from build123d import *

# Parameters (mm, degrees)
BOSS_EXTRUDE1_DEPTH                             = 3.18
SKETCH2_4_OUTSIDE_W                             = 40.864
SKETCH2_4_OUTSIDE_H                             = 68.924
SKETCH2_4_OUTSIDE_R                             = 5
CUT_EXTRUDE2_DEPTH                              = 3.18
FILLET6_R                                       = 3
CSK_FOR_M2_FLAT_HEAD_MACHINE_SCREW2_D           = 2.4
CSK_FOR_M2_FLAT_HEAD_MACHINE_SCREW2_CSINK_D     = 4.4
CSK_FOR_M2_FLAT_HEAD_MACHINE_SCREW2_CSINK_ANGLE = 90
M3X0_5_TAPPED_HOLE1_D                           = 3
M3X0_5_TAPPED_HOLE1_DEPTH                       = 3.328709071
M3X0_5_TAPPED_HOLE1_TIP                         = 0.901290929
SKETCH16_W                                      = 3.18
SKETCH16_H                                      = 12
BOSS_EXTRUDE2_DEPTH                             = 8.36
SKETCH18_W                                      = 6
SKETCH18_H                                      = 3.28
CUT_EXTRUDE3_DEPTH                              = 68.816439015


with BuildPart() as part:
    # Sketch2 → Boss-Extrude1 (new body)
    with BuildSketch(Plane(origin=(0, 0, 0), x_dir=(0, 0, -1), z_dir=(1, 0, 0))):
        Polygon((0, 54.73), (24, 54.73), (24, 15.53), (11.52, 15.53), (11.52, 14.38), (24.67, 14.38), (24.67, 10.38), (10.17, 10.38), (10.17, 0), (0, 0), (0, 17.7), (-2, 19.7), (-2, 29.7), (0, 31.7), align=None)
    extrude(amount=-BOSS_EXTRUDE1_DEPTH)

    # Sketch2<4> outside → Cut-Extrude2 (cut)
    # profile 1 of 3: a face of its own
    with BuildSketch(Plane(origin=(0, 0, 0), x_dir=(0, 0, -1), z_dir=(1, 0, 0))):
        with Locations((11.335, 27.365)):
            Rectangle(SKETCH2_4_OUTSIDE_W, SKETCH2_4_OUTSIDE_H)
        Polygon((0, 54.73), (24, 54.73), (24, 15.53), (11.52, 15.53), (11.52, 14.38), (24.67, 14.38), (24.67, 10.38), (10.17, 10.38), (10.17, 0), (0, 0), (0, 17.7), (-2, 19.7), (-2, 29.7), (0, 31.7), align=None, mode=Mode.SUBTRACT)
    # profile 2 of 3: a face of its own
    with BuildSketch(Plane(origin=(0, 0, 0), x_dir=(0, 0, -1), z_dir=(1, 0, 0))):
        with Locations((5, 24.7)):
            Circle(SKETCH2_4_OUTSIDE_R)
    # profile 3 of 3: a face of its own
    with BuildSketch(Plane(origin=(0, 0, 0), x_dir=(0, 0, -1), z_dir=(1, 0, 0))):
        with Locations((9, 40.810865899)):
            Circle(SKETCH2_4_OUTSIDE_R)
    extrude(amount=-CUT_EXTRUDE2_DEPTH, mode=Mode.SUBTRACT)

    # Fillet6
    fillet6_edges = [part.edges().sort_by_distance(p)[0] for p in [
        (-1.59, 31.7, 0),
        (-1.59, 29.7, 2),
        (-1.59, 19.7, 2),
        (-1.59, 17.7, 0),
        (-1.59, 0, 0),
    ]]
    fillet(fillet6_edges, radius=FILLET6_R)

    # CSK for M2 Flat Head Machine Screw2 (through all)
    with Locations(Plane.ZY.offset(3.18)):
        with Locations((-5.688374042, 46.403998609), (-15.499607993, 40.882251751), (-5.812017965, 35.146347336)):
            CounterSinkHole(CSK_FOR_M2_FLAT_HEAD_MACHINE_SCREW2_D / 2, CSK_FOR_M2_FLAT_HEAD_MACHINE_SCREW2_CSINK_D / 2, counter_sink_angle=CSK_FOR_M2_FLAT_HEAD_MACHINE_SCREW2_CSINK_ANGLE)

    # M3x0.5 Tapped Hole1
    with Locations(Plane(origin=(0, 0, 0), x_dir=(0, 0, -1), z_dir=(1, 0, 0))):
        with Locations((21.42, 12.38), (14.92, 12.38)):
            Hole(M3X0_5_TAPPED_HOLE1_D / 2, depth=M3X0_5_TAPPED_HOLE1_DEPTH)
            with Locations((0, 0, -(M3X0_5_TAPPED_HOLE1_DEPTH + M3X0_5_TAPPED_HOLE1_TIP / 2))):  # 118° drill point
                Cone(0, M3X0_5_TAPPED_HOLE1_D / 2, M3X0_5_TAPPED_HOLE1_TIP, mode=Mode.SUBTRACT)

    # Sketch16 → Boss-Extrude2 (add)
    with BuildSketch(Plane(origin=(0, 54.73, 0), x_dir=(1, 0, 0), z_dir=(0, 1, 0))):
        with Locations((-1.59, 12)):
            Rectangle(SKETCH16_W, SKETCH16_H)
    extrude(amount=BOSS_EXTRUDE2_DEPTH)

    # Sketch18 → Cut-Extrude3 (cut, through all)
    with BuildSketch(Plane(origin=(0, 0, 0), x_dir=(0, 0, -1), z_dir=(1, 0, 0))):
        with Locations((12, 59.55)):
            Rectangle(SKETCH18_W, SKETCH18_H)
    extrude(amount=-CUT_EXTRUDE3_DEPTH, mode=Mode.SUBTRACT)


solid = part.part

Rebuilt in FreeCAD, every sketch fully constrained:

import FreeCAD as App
import Part
import Sketcher


def edges_at(feature, points):
    """Names of the edges that pass closest to the given points."""
    edges = feature.Shape.Edges
    near = lambda p: min(range(len(edges)), key=lambda i: edges[i].distToShape(Part.Vertex(*p))[0])
    return sorted({f"Edge{near(p) + 1}" for p in points})

doc = App.newDocument("Part")
body = doc.addObject("PartDesign::Body", "Body")

sketch1 = doc.addObject("Sketcher::SketchObject", "Sketch")
body.addObject(sketch1)
sketch1.AttachmentSupport = (doc.YZ_Plane, [""])
sketch1.MapMode = "FlatFace"
sketch1.addGeometry([
    Part.LineSegment(App.Vector(54.7, -24, 0), App.Vector(54.7, 0, 0)),
    Part.LineSegment(App.Vector(54.7, 0, 0), App.Vector(31.7, 0, 0)),
    Part.LineSegment(App.Vector(31.7, 0, 0), App.Vector(29.7, 2, 0)),
    Part.LineSegment(App.Vector(29.7, 2, 0), App.Vector(19.7, 2, 0)),
    Part.LineSegment(App.Vector(19.7, 2, 0), App.Vector(17.7, 0, 0)),
    Part.LineSegment(App.Vector(17.7, 0, 0), App.Vector(0, 0, 0)),
    Part.LineSegment(App.Vector(0, 0, 0), App.Vector(0, -10.2, 0)),
    Part.LineSegment(App.Vector(0, -10.2, 0), App.Vector(10.4, -10.2, 0)),
    Part.LineSegment(App.Vector(10.4, -10.2, 0), App.Vector(10.4, -24.7, 0)),
    Part.LineSegment(App.Vector(10.4, -24.7, 0), App.Vector(14.4, -24.7, 0)),
    Part.LineSegment(App.Vector(14.4, -24.7, 0), App.Vector(14.4, -11.5, 0)),
    Part.LineSegment(App.Vector(14.4, -11.5, 0), App.Vector(15.5, -11.5, 0)),
    Part.LineSegment(App.Vector(15.5, -11.5, 0), App.Vector(15.5, -24, 0)),
    Part.LineSegment(App.Vector(15.5, -24, 0), App.Vector(54.7, -24, 0)),
], False)
sketch1.addConstraint([
    Sketcher.Constraint("Coincident", 0, 2, 1, 1),
    Sketcher.Constraint("Coincident", 1, 2, 2, 1),
    Sketcher.Constraint("Coincident", 2, 2, 3, 1),
    Sketcher.Constraint("Coincident", 3, 2, 4, 1),
    Sketcher.Constraint("Coincident", 4, 2, 5, 1),
    Sketcher.Constraint("Coincident", 5, 2, 6, 1),
    Sketcher.Constraint("Coincident", 6, 2, 7, 1),
    Sketcher.Constraint("Coincident", 7, 2, 8, 1),
    Sketcher.Constraint("Coincident", 8, 2, 9, 1),
    Sketcher.Constraint("Coincident", 9, 2, 10, 1),
    Sketcher.Constraint("Coincident", 10, 2, 11, 1),
    Sketcher.Constraint("Coincident", 11, 2, 12, 1),
    Sketcher.Constraint("Coincident", 12, 2, 13, 1),
    Sketcher.Constraint("Coincident", 13, 2, 0, 1),
    Sketcher.Constraint("Vertical", 0),
    Sketcher.Constraint("Horizontal", 1),
    Sketcher.Constraint("Horizontal", 3),
    Sketcher.Constraint("Horizontal", 5),
    Sketcher.Constraint("Vertical", 6),
    Sketcher.Constraint("Horizontal", 7),
    Sketcher.Constraint("Vertical", 8),
    Sketcher.Constraint("Horizontal", 9),
    Sketcher.Constraint("Vertical", 10),
    Sketcher.Constraint("Horizontal", 11),
    Sketcher.Constraint("Vertical", 12),
    Sketcher.Constraint("Horizontal", 13),
    Sketcher.Constraint("Coincident", 5, 2, -1, 1),
    Sketcher.Constraint("PointOnObject", 0, 2, -1),
    Sketcher.Constraint("Perpendicular", 2, 4),
    Sketcher.Constraint("Equal", 2, 4),
    Sketcher.Constraint("DistanceX", 3, 2, 3, 1, 10.0),
    Sketcher.Constraint("DistanceX", 9, 1, 9, 2, 4.0),
    Sketcher.Constraint("DistanceY", 0, 1, 0, 2, 24.0),
    Sketcher.Constraint("DistanceX", 5, 2, 5, 1, 17.7),
    Sketcher.Constraint("DistanceX", 13, 1, 13, 2, 39.2),
    Sketcher.Constraint("DistanceY", 8, 2, 8, 1, 14.5),
    Sketcher.Constraint("DistanceY", -1, 1, 2, 2, 2.0),
    Sketcher.Constraint("DistanceX", 1, 2, 1, 1, 23.03),
    Sketcher.Constraint("DistanceX", 7, 1, 7, 2, 10.38),
    Sketcher.Constraint("DistanceY", 6, 2, 6, 1, 10.17),
    Sketcher.Constraint("DistanceY", 10, 1, 10, 2, 13.15),
])
pad1 = doc.addObject("PartDesign::Pad", "Pad")
body.addObject(pad1)
pad1.Profile = sketch1
pad1.Length = 3.18
pad1.Reversed = True

sketch2 = doc.addObject("Sketcher::SketchObject", "Sketch001")
body.addObject(sketch2)
sketch2.AttachmentSupport = (doc.YZ_Plane, [""])
sketch2.MapMode = "FlatFace"
sketch2.addGeometry([
    Part.LineSegment(App.Vector(61.8, 9.1, 0), App.Vector(-7.1, 9.1, 0)),
    Part.LineSegment(App.Vector(-7.1, 9.1, 0), App.Vector(-7.1, -31.8, 0)),
    Part.LineSegment(App.Vector(-7.1, -31.8, 0), App.Vector(61.8, -31.8, 0)),
    Part.LineSegment(App.Vector(61.8, -31.8, 0), App.Vector(61.8, 9.1, 0)),
    Part.LineSegment(App.Vector(31.7, 0, 0), App.Vector(54.7, 0, 0)),
    Part.LineSegment(App.Vector(54.7, 0, 0), App.Vector(54.7, -24, 0)),
    Part.LineSegment(App.Vector(54.7, -24, 0), App.Vector(15.5, -24, 0)),
    Part.LineSegment(App.Vector(15.5, -24, 0), App.Vector(15.5, -11.5, 0)),
    Part.LineSegment(App.Vector(15.5, -11.5, 0), App.Vector(14.4, -11.5, 0)),
    Part.LineSegment(App.Vector(14.4, -11.5, 0), App.Vector(14.4, -24.7, 0)),
    Part.LineSegment(App.Vector(14.4, -24.7, 0), App.Vector(10.4, -24.7, 0)),
    Part.LineSegment(App.Vector(10.4, -24.7, 0), App.Vector(10.4, -10.2, 0)),
    Part.LineSegment(App.Vector(10.4, -10.2, 0), App.Vector(0, -10.2, 0)),
    Part.LineSegment(App.Vector(0, -10.2, 0), App.Vector(0, 0, 0)),
    Part.LineSegment(App.Vector(0, 0, 0), App.Vector(17.7, 0, 0)),
    Part.LineSegment(App.Vector(17.7, 0, 0), App.Vector(19.7, 2, 0)),
    Part.LineSegment(App.Vector(19.7, 2, 0), App.Vector(29.7, 2, 0)),
    Part.LineSegment(App.Vector(29.7, 2, 0), App.Vector(31.7, 0, 0)),
    Part.Circle(App.Vector(24.7, -5, 0), App.Vector(0, 0, 1), 5),
    Part.Circle(App.Vector(40.8, -9, 0), App.Vector(0, 0, 1), 5),
], False)
sketch2.addConstraint([
    Sketcher.Constraint("Coincident", 0, 2, 1, 1),
    Sketcher.Constraint("Coincident", 1, 2, 2, 1),
    Sketcher.Constraint("Coincident", 2, 2, 3, 1),
    Sketcher.Constraint("Coincident", 3, 2, 0, 1),
    Sketcher.Constraint("Coincident", 4, 2, 5, 1),
    Sketcher.Constraint("Coincident", 5, 2, 6, 1),
    Sketcher.Constraint("Coincident", 6, 2, 7, 1),
    Sketcher.Constraint("Coincident", 7, 2, 8, 1),
    Sketcher.Constraint("Coincident", 8, 2, 9, 1),
    Sketcher.Constraint("Coincident", 9, 2, 10, 1),
    Sketcher.Constraint("Coincident", 10, 2, 11, 1),
    Sketcher.Constraint("Coincident", 11, 2, 12, 1),
    Sketcher.Constraint("Coincident", 12, 2, 13, 1),
    Sketcher.Constraint("Coincident", 13, 2, 14, 1),
    Sketcher.Constraint("Coincident", 14, 2, 15, 1),
    Sketcher.Constraint("Coincident", 15, 2, 16, 1),
    Sketcher.Constraint("Coincident", 16, 2, 17, 1),
    Sketcher.Constraint("Coincident", 17, 2, 4, 1),
    Sketcher.Constraint("Horizontal", 0),
    Sketcher.Constraint("Vertical", 1),
    Sketcher.Constraint("Horizontal", 2),
    Sketcher.Constraint("Vertical", 3),
    Sketcher.Constraint("Horizontal", 4),
    Sketcher.Constraint("Vertical", 5),
    Sketcher.Constraint("Horizontal", 6),
    Sketcher.Constraint("Vertical", 7),
    Sketcher.Constraint("Horizontal", 8),
    Sketcher.Constraint("Vertical", 9),
    Sketcher.Constraint("Horizontal", 10),
    Sketcher.Constraint("Vertical", 11),
    Sketcher.Constraint("Horizontal", 12),
    Sketcher.Constraint("Vertical", 13),
    Sketcher.Constraint("Horizontal", 14),
    Sketcher.Constraint("Horizontal", 16),
    Sketcher.Constraint("Coincident", 13, 2, -1, 1),
    Sketcher.Constraint("Equal", 18, 19),
    Sketcher.Constraint("PointOnObject", 4, 2, -1),
    Sketcher.Constraint("Perpendicular", 15, 17),
    Sketcher.Constraint("Equal", 15, 17),
    Sketcher.Constraint("Diameter", 18, 10.0),
    Sketcher.Constraint("DistanceX", 10, 2, 10, 1, 4.0),
    Sketcher.Constraint("DistanceX", 16, 1, 16, 2, 10.0),
    Sketcher.Constraint("DistanceY", 5, 2, 5, 1, 24.0),
    Sketcher.Constraint("DistanceX", 6, 2, 6, 1, 39.2),
    Sketcher.Constraint("DistanceX", 14, 1, 14, 2, 17.7),
    Sketcher.Constraint("DistanceY", 11, 1, 11, 2, 14.5),
    Sketcher.Constraint("DistanceY", 18, 3, -1, 1, 5.0),
    Sketcher.Constraint("DistanceY", 19, 3, -1, 1, 9.0),
    Sketcher.Constraint("DistanceY", -1, 1, 15, 2, 2.0),
    Sketcher.Constraint("DistanceX", 14, 2, 18, 3, 7.0),
    Sketcher.Constraint("DistanceX", 4, 1, 4, 2, 23.03),
    Sketcher.Constraint("DistanceX", 8, 2, 8, 1, 1.15),
    Sketcher.Constraint("DistanceY", 7, 1, 7, 2, 12.48),
    Sketcher.Constraint("DistanceY", 9, 2, 9, 1, 13.15),
    Sketcher.Constraint("DistanceX", 0, 2, 0, 1, 68.924),
    Sketcher.Constraint("DistanceY", 1, 2, 1, 1, 40.864),
    Sketcher.Constraint("DistanceX", 0, 2, -1, 1, 7.097),
    Sketcher.Constraint("DistanceY", -1, 1, 0, 2, 9.097),
    Sketcher.Constraint("DistanceX", -1, 1, 19, 3, 40.810866),
])
pocket1 = doc.addObject("PartDesign::Pocket", "Pocket")
body.addObject(pocket1)
pocket1.Profile = sketch2
pocket1.Length = 3.18
doc.recompute()

fillet = doc.addObject("PartDesign::Fillet", "Fillet")
body.addObject(fillet)
fillet.Base = (pocket1, edges_at(pocket1, [
    (-1.59, 31.7, 0),
    (-1.59, 29.7, 2),
    (-1.59, 19.7, 2),
    (-1.59, 17.7, 0),
    (-1.59, 0, 0),
]))
fillet.Radius = 3

sketch3 = doc.addObject("Sketcher::SketchObject", "Sketch002")
body.addObject(sketch3)
sketch3.AttachmentSupport = (doc.YZ_Plane, [""])
sketch3.MapMode = "FlatFace"
sketch3.AttachmentOffset = App.Placement(App.Vector(0, 0, -3.18), App.Rotation())
sketch3.addGeometry([
    Part.Circle(App.Vector(46.4, -5.7, 0), App.Vector(0, 0, 1), 1.2),
    Part.Circle(App.Vector(40.9, -15.5, 0), App.Vector(0, 0, 1), 1.2),
    Part.Circle(App.Vector(35.1, -5.8, 0), App.Vector(0, 0, 1), 1.2),
], False)
sketch3.addConstraint([
    Sketcher.Constraint("Equal", 0, 1),
    Sketcher.Constraint("Equal", 1, 2),
    Sketcher.Constraint("Diameter", 0, 2.4),
    Sketcher.Constraint("DistanceX", -1, 1, 0, 3, 46.403999),
    Sketcher.Constraint("DistanceX", -1, 1, 1, 3, 40.882252),
    Sketcher.Constraint("DistanceX", 2, 3, 0, 3, 11.257651),
    Sketcher.Constraint("DistanceY", 1, 3, 2, 3, 9.68759),
    Sketcher.Constraint("DistanceY", 0, 3, -1, 1, 5.688374),
    Sketcher.Constraint("DistanceY", 1, 3, -1, 1, 15.499608),
])
doc.recompute()
hole = doc.addObject("PartDesign::Hole", "Hole")
body.addObject(hole)
hole.Profile = sketch3
hole.ThreadType = "None"
hole.Diameter = 2.4
hole.DepthType = "ThroughAll"
hole.HoleCutType = "Countersink"
hole.HoleCutDiameter = 4.4
hole.HoleCutCountersinkAngle = 90
hole.Reversed = True

sketch4 = doc.addObject("Sketcher::SketchObject", "Sketch003")
body.addObject(sketch4)
sketch4.AttachmentSupport = (doc.YZ_Plane, [""])
sketch4.MapMode = "FlatFace"
sketch4.addGeometry([
    Part.Circle(App.Vector(12.4, -21.4, 0), App.Vector(0, 0, 1), 1.5),
    Part.Circle(App.Vector(12.4, -14.9, 0), App.Vector(0, 0, 1), 1.5),
], False)
sketch4.addConstraint([
    Sketcher.Constraint("Equal", 0, 1),
    Sketcher.Constraint("Vertical", 0, 3, 1, 3),
    Sketcher.Constraint("Diameter", 0, 3.0),
    Sketcher.Constraint("DistanceY", 0, 3, 1, 3, 6.5),
    Sketcher.Constraint("DistanceX", -1, 1, 0, 3, 12.38),
    Sketcher.Constraint("DistanceY", 0, 3, -1, 1, 21.42),
])
doc.recompute()
hole2 = doc.addObject("PartDesign::Hole", "Hole001")
body.addObject(hole2)
hole2.Profile = sketch4
hole2.ThreadType = "None"
hole2.Diameter = 3
hole2.DepthType = "Dimension"
hole2.Depth = 3.328709
hole2.DrillPoint = "Angled"
hole2.DrillPointAngle = 118

sketch5 = doc.addObject("Sketcher::SketchObject", "Sketch004")
body.addObject(sketch5)
sketch5.AttachmentSupport = (doc.XZ_Plane, [""])
sketch5.MapMode = "FlatFace"
sketch5.AttachmentOffset = App.Placement(App.Vector(0, 0, -54.73), App.Rotation())
sketch5.addGeometry([
    Part.LineSegment(App.Vector(-3.2, -18, 0), App.Vector(-3.2, -6, 0)),
    Part.LineSegment(App.Vector(-3.2, -6, 0), App.Vector(0, -6, 0)),
    Part.LineSegment(App.Vector(0, -6, 0), App.Vector(0, -18, 0)),
    Part.LineSegment(App.Vector(0, -18, 0), App.Vector(-3.2, -18, 0)),
], False)
sketch5.addConstraint([
    Sketcher.Constraint("Coincident", 0, 2, 1, 1),
    Sketcher.Constraint("Coincident", 1, 2, 2, 1),
    Sketcher.Constraint("Coincident", 2, 2, 3, 1),
    Sketcher.Constraint("Coincident", 3, 2, 0, 1),
    Sketcher.Constraint("Vertical", 0),
    Sketcher.Constraint("Horizontal", 1),
    Sketcher.Constraint("Vertical", 2),
    Sketcher.Constraint("Horizontal", 3),
    Sketcher.Constraint("PointOnObject", 1, 2, -2),
    Sketcher.Constraint("DistanceY", 0, 1, 0, 2, 12.0),
    Sketcher.Constraint("DistanceY", 0, 2, -1, 1, 6.0),
    Sketcher.Constraint("DistanceX", 1, 1, 1, 2, 3.18),
])
pad2 = doc.addObject("PartDesign::Pad", "Pad001")
body.addObject(pad2)
pad2.Profile = sketch5
pad2.Length = 8.36
pad2.Reversed = True

sketch6 = doc.addObject("Sketcher::SketchObject", "Sketch005")
body.addObject(sketch6)
sketch6.AttachmentSupport = (doc.YZ_Plane, [""])
sketch6.MapMode = "FlatFace"
sketch6.addGeometry([
    Part.LineSegment(App.Vector(61.2, -9, 0), App.Vector(57.9, -9, 0)),
    Part.LineSegment(App.Vector(57.9, -9, 0), App.Vector(57.9, -15, 0)),
    Part.LineSegment(App.Vector(57.9, -15, 0), App.Vector(61.2, -15, 0)),
    Part.LineSegment(App.Vector(61.2, -15, 0), App.Vector(61.2, -9, 0)),
], False)
sketch6.addConstraint([
    Sketcher.Constraint("Coincident", 0, 2, 1, 1),
    Sketcher.Constraint("Coincident", 1, 2, 2, 1),
    Sketcher.Constraint("Coincident", 2, 2, 3, 1),
    Sketcher.Constraint("Coincident", 3, 2, 0, 1),
    Sketcher.Constraint("Horizontal", 0),
    Sketcher.Constraint("Vertical", 1),
    Sketcher.Constraint("Horizontal", 2),
    Sketcher.Constraint("Vertical", 3),
    Sketcher.Constraint("DistanceY", 1, 2, 1, 1, 6.0),
    Sketcher.Constraint("DistanceY", 0, 2, -1, 1, 9.0),
    Sketcher.Constraint("DistanceX", 0, 2, 0, 1, 3.28),
    Sketcher.Constraint("DistanceX", -1, 1, 0, 2, 57.91),
])
pocket2 = doc.addObject("PartDesign::Pocket", "Pocket001")
body.addObject(pocket2)
pocket2.Profile = sketch6
pocket2.Type = "ThroughAll"

doc.recompute()
